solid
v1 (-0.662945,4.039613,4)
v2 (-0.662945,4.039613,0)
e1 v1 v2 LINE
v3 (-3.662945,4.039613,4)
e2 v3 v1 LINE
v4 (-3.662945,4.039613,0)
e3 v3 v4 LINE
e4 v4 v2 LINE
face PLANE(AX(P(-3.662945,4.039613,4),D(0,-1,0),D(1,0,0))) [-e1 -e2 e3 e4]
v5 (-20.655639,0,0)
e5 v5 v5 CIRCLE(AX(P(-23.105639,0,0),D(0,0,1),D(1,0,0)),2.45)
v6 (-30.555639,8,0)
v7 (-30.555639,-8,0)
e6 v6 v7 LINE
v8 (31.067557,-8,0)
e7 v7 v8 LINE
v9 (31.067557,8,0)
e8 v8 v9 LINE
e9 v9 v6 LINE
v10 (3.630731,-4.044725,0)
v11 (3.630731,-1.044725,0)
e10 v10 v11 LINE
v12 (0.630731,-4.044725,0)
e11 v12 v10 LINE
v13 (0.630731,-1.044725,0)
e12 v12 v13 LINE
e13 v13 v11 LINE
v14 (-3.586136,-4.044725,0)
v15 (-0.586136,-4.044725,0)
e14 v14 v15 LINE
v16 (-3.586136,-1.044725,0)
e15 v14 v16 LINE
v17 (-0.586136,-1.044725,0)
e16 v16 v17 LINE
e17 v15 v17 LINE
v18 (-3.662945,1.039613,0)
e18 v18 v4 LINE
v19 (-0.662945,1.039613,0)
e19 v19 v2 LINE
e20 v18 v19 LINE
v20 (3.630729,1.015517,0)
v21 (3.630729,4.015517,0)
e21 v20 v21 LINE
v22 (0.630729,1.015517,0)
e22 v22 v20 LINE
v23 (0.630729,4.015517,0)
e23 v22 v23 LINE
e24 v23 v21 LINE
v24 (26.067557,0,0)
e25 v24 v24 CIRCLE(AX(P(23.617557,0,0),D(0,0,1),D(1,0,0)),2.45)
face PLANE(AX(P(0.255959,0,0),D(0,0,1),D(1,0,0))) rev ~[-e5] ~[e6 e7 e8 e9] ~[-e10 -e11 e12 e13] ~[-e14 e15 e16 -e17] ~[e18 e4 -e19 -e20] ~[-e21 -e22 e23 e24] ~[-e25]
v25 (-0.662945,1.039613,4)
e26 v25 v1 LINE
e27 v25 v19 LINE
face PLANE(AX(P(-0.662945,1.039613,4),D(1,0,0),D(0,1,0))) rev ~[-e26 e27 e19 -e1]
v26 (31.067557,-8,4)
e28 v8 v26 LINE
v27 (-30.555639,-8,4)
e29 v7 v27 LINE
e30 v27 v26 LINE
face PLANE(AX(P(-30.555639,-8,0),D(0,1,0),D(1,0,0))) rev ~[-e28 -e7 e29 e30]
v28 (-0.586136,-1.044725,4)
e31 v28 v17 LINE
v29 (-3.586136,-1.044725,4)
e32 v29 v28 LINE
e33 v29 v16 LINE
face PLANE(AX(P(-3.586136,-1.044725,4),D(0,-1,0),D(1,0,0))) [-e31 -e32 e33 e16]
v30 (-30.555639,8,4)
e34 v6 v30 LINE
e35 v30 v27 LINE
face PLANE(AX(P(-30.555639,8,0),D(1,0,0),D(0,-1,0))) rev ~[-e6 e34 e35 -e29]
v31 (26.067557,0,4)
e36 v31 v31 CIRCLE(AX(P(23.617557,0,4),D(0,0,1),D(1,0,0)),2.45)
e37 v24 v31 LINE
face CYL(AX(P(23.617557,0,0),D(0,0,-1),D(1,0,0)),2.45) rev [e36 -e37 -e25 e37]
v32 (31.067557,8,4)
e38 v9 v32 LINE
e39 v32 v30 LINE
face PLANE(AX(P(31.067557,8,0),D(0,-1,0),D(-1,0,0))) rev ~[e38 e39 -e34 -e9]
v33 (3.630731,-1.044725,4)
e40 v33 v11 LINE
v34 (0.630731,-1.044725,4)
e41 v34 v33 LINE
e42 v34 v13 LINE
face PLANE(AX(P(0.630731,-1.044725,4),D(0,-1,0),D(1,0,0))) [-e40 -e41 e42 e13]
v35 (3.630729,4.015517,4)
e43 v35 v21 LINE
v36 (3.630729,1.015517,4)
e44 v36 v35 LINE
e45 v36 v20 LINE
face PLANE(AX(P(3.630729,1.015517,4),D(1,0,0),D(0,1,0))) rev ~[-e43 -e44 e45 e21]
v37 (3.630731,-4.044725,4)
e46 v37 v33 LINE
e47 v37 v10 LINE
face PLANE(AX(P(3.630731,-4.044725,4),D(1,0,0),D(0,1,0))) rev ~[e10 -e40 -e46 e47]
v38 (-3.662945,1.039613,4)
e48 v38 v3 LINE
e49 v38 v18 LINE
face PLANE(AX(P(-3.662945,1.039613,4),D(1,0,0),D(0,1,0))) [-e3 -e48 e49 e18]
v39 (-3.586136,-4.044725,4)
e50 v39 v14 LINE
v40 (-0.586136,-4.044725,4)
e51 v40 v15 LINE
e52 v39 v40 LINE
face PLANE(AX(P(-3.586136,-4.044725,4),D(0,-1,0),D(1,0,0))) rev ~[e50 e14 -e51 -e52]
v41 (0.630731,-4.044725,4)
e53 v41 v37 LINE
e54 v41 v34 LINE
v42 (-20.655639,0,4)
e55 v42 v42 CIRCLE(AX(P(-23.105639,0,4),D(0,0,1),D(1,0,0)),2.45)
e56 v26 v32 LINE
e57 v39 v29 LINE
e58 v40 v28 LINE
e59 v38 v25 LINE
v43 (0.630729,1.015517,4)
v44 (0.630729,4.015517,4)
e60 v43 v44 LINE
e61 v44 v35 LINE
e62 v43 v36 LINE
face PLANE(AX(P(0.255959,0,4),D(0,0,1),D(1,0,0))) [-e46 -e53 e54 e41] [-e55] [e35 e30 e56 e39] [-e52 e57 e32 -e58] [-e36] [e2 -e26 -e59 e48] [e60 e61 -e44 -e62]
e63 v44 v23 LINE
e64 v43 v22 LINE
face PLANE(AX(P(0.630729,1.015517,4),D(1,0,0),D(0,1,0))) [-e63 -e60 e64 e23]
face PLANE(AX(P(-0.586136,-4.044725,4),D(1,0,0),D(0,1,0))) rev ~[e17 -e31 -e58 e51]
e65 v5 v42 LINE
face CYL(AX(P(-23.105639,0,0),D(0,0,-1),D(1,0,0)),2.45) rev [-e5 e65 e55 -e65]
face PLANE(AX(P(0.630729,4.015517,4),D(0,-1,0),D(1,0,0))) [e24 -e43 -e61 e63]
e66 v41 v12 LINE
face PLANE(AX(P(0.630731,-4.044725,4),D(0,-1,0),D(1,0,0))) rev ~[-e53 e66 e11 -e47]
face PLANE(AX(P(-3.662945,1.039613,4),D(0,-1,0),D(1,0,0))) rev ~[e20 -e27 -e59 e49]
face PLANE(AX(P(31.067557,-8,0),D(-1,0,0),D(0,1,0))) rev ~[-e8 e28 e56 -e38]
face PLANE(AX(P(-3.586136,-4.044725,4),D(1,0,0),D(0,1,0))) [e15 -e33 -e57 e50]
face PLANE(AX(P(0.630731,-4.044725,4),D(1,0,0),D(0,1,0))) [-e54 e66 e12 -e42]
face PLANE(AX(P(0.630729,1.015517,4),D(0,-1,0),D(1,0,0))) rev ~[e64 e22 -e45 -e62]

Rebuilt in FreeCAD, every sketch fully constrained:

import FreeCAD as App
import Part
import Sketcher

V = App.Vector

doc = App.newDocument("Part")
params = doc.addObject("Spreadsheet::Sheet", "Params")
for row, (alias, value) in enumerate([
    ("sketch1_diameter", "4.9 mm"),
    ("sketch1_height", "16 mm"),
    ("pad1_length", "4 mm"),
    ("sketch2_width", "3 mm"),
], start=1):
    params.set(f"A{row}", alias)
    params.set(f"B{row}", "=" + value)
    params.setAlias(f"B{row}", alias)

body = doc.addObject("PartDesign::Body", "Body")

sketch1 = doc.addObject("Sketcher::SketchObject", "Sketch")
body.addObject(sketch1)
sketch1.AttachmentSupport = (doc.XY_Plane, [""])
sketch1.MapMode = "FlatFace"
sketch1.addGeometry(Part.LineSegment(V(31.1, 8, 0), V(-30.6, 8, 0)), False)
sketch1.addGeometry(Part.LineSegment(V(-30.6, 8, 0), V(-30.6, -8, 0)), False)
sketch1.addGeometry(Part.LineSegment(V(-30.6, -8, 0), V(31.1, -8, 0)), False)
sketch1.addGeometry(Part.LineSegment(V(31.1, -8, 0), V(31.1, 8, 0)), False)
sketch1.addGeometry(Part.Circle(V(-23.1, 0, 0), V(0, 0, 1), 2.5), False)
sketch1.addGeometry(Part.Circle(V(23.6, 0, 0), V(0, 0, 1), 2.5), False)
sketch1.addConstraint(Sketcher.Constraint("Coincident", 0, 2, 1, 1))
sketch1.addConstraint(Sketcher.Constraint("Coincident", 1, 2, 2, 1))
sketch1.addConstraint(Sketcher.Constraint("Coincident", 2, 2, 3, 1))
sketch1.addConstraint(Sketcher.Constraint("Coincident", 3, 2, 0, 1))
sketch1.addConstraint(Sketcher.Constraint("Horizontal", 0))
sketch1.addConstraint(Sketcher.Constraint("Vertical", 1))
sketch1.addConstraint(Sketcher.Constraint("Horizontal", 2))
sketch1.addConstraint(Sketcher.Constraint("Vertical", 3))
sketch1.addConstraint(Sketcher.Constraint("Equal", 4, 5))
sketch1.addConstraint(Sketcher.Constraint("PointOnObject", 4, 3, -1))
sketch1.addConstraint(Sketcher.Constraint("PointOnObject", 5, 3, -1))
sketch1.addConstraint(Sketcher.Constraint("Diameter", 4, 4.9))
sketch1.addConstraint(Sketcher.Constraint("DistanceY", 1, 2, 1, 1, 16.0))
sketch1.addConstraint(Sketcher.Constraint("DistanceY", -1, 1, 0, 2, 8.0))
sketch1.addConstraint(Sketcher.Constraint("DistanceX", 0, 2, 4, 3, 7.45))
sketch1.addConstraint(Sketcher.Constraint("DistanceX", 5, 3, 2, 2, 7.45))
sketch1.addConstraint(Sketcher.Constraint("DistanceX", 0, 2, 0, 1, 61.623196))
sketch1.addConstraint(Sketcher.Constraint("DistanceX", 4, 3, -1, 1, 23.105639))
sketch1.setExpression("Constraints[11]", "Params.sketch1_diameter")
sketch1.setExpression("Constraints[12]", "Params.sketch1_height")
pad1 = doc.addObject("PartDesign::Pad", "Pad")
body.addObject(pad1)
pad1.Profile = sketch1
pad1.setExpression("Length", "Params.pad1_length")

sketch2 = doc.addObject("Sketcher::SketchObject", "Sketch001")
body.addObject(sketch2)
sketch2.AttachmentSupport = (doc.XY_Plane, [""])
sketch2.MapMode = "FlatFace"
sketch2.AttachmentOffset = App.Placement(V(0, 0, 4), App.Rotation())
sketch2.addGeometry(Part.LineSegment(V(-3.7, 4, 0), V(-3.7, 1, 0)), False)
sketch2.addGeometry(Part.LineSegment(V(-3.7, 1, 0), V(-0.7, 1, 0)), False)
sketch2.addGeometry(Part.LineSegment(V(-0.7, 1, 0), V(-0.7, 4, 0)), False)
sketch2.addGeometry(Part.LineSegment(V(-0.7, 4, 0), V(-3.7, 4, 0)), False)
sketch2.addGeometry(Part.LineSegment(V(0.6, 4, 0), V(0.6, 1, 0)), False)
sketch2.addGeometry(Part.LineSegment(V(0.6, 1, 0), V(3.6, 1, 0)), False)
sketch2.addGeometry(Part.LineSegment(V(3.6, 1, 0), V(3.6, 4, 0)), False)
sketch2.addGeometry(Part.LineSegment(V(3.6, 4, 0), V(0.6, 4, 0)), False)
sketch2.addGeometry(Part.LineSegment(V(-3.6, -1, 0), V(-3.6, -4, 0)), False)
sketch2.addGeometry(Part.LineSegment(V(-3.6, -4, 0), V(-0.6, -4, 0)), False)
sketch2.addGeometry(Part.LineSegment(V(-0.6, -4, 0), V(-0.6, -1, 0)), False)
sketch2.addGeometry(Part.LineSegment(V(-0.6, -1, 0), V(-3.6, -1, 0)), False)
sketch2.addGeometry(Part.LineSegment(V(0.6, -1, 0), V(0.6, -4, 0)), False)
sketch2.addGeometry(Part.LineSegment(V(0.6, -4, 0), V(3.6, -4, 0)), False)
sketch2.addGeometry(Part.LineSegment(V(3.6, -4, 0), V(3.6, -1, 0)), False)
sketch2.addGeometry(Part.LineSegment(V(3.6, -1, 0), V(0.6, -1, 0)), False)
sketch2.addConstraint(Sketcher.Constraint("Coincident", 0, 2, 1, 1))
sketch2.addConstraint(Sketcher.Constraint("Coincident", 1, 2, 2, 1))
sketch2.addConstraint(Sketcher.Constraint("Coincident", 2, 2, 3, 1))
sketch2.addConstraint(Sketcher.Constraint("Coincident", 3, 2, 0, 1))
sketch2.addConstraint(Sketcher.Constraint("Coincident", 4, 2, 5, 1))
sketch2.addConstraint(Sketcher.Constraint("Coincident", 5, 2, 6, 1))
sketch2.addConstraint(Sketcher.Constraint("Coincident", 6, 2, 7, 1))
sketch2.addConstraint(Sketcher.Constraint("Coincident", 7, 2, 4, 1))
sketch2.addConstraint(Sketcher.Constraint("Coincident", 8, 2, 9, 1))
sketch2.addConstraint(Sketcher.Constraint("Coincident", 9, 2, 10, 1))
sketch2.addConstraint(Sketcher.Constraint("Coincident", 10, 2, 11, 1))
sketch2.addConstraint(Sketcher.Constraint("Coincident", 11, 2, 8, 1))
sketch2.addConstraint(Sketcher.Constraint("Coincident", 12, 2, 13, 1))
sketch2.addConstraint(Sketcher.Constraint("Coincident", 13, 2, 14, 1))
sketch2.addConstraint(Sketcher.Constraint("Coincident", 14, 2, 15, 1))
sketch2.addConstraint(Sketcher.Constraint("Coincident", 15, 2, 12, 1))
sketch2.addConstraint(Sketcher.Constraint("Vertical", 0))
sketch2.addConstraint(Sketcher.Constraint("Horizontal", 1))
sketch2.addConstraint(Sketcher.Constraint("Vertical", 2))
sketch2.addConstraint(Sketcher.Constraint("Horizontal", 3))
sketch2.addConstraint(Sketcher.Constraint("Vertical", 4))
sketch2.addConstraint(Sketcher.Constraint("Horizontal", 5))
sketch2.addConstraint(Sketcher.Constraint("Vertical", 6))
sketch2.addConstraint(Sketcher.Constraint("Horizontal", 7))
sketch2.addConstraint(Sketcher.Constraint("Vertical", 8))
sketch2.addConstraint(Sketcher.Constraint("Horizontal", 9))
sketch2.addConstraint(Sketcher.Constraint("Vertical", 10))
sketch2.addConstraint(Sketcher.Constraint("Horizontal", 11))
sketch2.addConstraint(Sketcher.Constraint("Vertical", 12))
sketch2.addConstraint(Sketcher.Constraint("Horizontal", 13))
sketch2.addConstraint(Sketcher.Constraint("Vertical", 14))
sketch2.addConstraint(Sketcher.Constraint("Horizontal", 15))
sketch2.addConstraint(Sketcher.Constraint("Horizontal", 9, 2, 12, 2))
sketch2.addConstraint(Sketcher.Constraint("Horizontal", 11, 2, 14, 2))
sketch2.addConstraint(Sketcher.Constraint("Vertical", 6, 2, 13, 2))
sketch2.addConstraint(Sketcher.Constraint("Equal", 3, 5))
sketch2.addConstraint(Sketcher.Constraint("Equal", 7, 9))
sketch2.addConstraint(Sketcher.Constraint("Equal", 11, 13))
sketch2.addConstraint(Sketcher.Constraint("Equal", 15, 0))
sketch2.addConstraint(Sketcher.Constraint("Equal", 2, 4))
sketch2.addConstraint(Sketcher.Constraint("Equal", 6, 8))
sketch2.addConstraint(Sketcher.Constraint("DistanceX", 1, 1, 1, 2, 3.0))
sketch2.addConstraint(Sketcher.Constraint("DistanceX", -1, 1, 4, 2, 0.630729))
sketch2.addConstraint(Sketcher.Constraint("DistanceX", 0, 2, 8, 2, 0.076809))
sketch2.addConstraint(Sketcher.Constraint("DistanceY", 8, 2, 4, 2, 5.060242))
sketch2.addConstraint(Sketcher.Constraint("DistanceX", 0, 2, -1, 1, 3.662945))
sketch2.addConstraint(Sketcher.Constraint("DistanceY", -1, 1, 0, 2, 1.039613))
sketch2.addConstraint(Sketcher.Constraint("DistanceY", -1, 1, 4, 2, 1.015517))
sketch2.setExpression("Constraints[41]", "Params.sketch2_width")
pocket1 = doc.addObject("PartDesign::Pocket", "Pocket")
body.addObject(pocket1)
pocket1.Profile = sketch2
pocket1.Type = "ThroughAll"

doc.recompute()
